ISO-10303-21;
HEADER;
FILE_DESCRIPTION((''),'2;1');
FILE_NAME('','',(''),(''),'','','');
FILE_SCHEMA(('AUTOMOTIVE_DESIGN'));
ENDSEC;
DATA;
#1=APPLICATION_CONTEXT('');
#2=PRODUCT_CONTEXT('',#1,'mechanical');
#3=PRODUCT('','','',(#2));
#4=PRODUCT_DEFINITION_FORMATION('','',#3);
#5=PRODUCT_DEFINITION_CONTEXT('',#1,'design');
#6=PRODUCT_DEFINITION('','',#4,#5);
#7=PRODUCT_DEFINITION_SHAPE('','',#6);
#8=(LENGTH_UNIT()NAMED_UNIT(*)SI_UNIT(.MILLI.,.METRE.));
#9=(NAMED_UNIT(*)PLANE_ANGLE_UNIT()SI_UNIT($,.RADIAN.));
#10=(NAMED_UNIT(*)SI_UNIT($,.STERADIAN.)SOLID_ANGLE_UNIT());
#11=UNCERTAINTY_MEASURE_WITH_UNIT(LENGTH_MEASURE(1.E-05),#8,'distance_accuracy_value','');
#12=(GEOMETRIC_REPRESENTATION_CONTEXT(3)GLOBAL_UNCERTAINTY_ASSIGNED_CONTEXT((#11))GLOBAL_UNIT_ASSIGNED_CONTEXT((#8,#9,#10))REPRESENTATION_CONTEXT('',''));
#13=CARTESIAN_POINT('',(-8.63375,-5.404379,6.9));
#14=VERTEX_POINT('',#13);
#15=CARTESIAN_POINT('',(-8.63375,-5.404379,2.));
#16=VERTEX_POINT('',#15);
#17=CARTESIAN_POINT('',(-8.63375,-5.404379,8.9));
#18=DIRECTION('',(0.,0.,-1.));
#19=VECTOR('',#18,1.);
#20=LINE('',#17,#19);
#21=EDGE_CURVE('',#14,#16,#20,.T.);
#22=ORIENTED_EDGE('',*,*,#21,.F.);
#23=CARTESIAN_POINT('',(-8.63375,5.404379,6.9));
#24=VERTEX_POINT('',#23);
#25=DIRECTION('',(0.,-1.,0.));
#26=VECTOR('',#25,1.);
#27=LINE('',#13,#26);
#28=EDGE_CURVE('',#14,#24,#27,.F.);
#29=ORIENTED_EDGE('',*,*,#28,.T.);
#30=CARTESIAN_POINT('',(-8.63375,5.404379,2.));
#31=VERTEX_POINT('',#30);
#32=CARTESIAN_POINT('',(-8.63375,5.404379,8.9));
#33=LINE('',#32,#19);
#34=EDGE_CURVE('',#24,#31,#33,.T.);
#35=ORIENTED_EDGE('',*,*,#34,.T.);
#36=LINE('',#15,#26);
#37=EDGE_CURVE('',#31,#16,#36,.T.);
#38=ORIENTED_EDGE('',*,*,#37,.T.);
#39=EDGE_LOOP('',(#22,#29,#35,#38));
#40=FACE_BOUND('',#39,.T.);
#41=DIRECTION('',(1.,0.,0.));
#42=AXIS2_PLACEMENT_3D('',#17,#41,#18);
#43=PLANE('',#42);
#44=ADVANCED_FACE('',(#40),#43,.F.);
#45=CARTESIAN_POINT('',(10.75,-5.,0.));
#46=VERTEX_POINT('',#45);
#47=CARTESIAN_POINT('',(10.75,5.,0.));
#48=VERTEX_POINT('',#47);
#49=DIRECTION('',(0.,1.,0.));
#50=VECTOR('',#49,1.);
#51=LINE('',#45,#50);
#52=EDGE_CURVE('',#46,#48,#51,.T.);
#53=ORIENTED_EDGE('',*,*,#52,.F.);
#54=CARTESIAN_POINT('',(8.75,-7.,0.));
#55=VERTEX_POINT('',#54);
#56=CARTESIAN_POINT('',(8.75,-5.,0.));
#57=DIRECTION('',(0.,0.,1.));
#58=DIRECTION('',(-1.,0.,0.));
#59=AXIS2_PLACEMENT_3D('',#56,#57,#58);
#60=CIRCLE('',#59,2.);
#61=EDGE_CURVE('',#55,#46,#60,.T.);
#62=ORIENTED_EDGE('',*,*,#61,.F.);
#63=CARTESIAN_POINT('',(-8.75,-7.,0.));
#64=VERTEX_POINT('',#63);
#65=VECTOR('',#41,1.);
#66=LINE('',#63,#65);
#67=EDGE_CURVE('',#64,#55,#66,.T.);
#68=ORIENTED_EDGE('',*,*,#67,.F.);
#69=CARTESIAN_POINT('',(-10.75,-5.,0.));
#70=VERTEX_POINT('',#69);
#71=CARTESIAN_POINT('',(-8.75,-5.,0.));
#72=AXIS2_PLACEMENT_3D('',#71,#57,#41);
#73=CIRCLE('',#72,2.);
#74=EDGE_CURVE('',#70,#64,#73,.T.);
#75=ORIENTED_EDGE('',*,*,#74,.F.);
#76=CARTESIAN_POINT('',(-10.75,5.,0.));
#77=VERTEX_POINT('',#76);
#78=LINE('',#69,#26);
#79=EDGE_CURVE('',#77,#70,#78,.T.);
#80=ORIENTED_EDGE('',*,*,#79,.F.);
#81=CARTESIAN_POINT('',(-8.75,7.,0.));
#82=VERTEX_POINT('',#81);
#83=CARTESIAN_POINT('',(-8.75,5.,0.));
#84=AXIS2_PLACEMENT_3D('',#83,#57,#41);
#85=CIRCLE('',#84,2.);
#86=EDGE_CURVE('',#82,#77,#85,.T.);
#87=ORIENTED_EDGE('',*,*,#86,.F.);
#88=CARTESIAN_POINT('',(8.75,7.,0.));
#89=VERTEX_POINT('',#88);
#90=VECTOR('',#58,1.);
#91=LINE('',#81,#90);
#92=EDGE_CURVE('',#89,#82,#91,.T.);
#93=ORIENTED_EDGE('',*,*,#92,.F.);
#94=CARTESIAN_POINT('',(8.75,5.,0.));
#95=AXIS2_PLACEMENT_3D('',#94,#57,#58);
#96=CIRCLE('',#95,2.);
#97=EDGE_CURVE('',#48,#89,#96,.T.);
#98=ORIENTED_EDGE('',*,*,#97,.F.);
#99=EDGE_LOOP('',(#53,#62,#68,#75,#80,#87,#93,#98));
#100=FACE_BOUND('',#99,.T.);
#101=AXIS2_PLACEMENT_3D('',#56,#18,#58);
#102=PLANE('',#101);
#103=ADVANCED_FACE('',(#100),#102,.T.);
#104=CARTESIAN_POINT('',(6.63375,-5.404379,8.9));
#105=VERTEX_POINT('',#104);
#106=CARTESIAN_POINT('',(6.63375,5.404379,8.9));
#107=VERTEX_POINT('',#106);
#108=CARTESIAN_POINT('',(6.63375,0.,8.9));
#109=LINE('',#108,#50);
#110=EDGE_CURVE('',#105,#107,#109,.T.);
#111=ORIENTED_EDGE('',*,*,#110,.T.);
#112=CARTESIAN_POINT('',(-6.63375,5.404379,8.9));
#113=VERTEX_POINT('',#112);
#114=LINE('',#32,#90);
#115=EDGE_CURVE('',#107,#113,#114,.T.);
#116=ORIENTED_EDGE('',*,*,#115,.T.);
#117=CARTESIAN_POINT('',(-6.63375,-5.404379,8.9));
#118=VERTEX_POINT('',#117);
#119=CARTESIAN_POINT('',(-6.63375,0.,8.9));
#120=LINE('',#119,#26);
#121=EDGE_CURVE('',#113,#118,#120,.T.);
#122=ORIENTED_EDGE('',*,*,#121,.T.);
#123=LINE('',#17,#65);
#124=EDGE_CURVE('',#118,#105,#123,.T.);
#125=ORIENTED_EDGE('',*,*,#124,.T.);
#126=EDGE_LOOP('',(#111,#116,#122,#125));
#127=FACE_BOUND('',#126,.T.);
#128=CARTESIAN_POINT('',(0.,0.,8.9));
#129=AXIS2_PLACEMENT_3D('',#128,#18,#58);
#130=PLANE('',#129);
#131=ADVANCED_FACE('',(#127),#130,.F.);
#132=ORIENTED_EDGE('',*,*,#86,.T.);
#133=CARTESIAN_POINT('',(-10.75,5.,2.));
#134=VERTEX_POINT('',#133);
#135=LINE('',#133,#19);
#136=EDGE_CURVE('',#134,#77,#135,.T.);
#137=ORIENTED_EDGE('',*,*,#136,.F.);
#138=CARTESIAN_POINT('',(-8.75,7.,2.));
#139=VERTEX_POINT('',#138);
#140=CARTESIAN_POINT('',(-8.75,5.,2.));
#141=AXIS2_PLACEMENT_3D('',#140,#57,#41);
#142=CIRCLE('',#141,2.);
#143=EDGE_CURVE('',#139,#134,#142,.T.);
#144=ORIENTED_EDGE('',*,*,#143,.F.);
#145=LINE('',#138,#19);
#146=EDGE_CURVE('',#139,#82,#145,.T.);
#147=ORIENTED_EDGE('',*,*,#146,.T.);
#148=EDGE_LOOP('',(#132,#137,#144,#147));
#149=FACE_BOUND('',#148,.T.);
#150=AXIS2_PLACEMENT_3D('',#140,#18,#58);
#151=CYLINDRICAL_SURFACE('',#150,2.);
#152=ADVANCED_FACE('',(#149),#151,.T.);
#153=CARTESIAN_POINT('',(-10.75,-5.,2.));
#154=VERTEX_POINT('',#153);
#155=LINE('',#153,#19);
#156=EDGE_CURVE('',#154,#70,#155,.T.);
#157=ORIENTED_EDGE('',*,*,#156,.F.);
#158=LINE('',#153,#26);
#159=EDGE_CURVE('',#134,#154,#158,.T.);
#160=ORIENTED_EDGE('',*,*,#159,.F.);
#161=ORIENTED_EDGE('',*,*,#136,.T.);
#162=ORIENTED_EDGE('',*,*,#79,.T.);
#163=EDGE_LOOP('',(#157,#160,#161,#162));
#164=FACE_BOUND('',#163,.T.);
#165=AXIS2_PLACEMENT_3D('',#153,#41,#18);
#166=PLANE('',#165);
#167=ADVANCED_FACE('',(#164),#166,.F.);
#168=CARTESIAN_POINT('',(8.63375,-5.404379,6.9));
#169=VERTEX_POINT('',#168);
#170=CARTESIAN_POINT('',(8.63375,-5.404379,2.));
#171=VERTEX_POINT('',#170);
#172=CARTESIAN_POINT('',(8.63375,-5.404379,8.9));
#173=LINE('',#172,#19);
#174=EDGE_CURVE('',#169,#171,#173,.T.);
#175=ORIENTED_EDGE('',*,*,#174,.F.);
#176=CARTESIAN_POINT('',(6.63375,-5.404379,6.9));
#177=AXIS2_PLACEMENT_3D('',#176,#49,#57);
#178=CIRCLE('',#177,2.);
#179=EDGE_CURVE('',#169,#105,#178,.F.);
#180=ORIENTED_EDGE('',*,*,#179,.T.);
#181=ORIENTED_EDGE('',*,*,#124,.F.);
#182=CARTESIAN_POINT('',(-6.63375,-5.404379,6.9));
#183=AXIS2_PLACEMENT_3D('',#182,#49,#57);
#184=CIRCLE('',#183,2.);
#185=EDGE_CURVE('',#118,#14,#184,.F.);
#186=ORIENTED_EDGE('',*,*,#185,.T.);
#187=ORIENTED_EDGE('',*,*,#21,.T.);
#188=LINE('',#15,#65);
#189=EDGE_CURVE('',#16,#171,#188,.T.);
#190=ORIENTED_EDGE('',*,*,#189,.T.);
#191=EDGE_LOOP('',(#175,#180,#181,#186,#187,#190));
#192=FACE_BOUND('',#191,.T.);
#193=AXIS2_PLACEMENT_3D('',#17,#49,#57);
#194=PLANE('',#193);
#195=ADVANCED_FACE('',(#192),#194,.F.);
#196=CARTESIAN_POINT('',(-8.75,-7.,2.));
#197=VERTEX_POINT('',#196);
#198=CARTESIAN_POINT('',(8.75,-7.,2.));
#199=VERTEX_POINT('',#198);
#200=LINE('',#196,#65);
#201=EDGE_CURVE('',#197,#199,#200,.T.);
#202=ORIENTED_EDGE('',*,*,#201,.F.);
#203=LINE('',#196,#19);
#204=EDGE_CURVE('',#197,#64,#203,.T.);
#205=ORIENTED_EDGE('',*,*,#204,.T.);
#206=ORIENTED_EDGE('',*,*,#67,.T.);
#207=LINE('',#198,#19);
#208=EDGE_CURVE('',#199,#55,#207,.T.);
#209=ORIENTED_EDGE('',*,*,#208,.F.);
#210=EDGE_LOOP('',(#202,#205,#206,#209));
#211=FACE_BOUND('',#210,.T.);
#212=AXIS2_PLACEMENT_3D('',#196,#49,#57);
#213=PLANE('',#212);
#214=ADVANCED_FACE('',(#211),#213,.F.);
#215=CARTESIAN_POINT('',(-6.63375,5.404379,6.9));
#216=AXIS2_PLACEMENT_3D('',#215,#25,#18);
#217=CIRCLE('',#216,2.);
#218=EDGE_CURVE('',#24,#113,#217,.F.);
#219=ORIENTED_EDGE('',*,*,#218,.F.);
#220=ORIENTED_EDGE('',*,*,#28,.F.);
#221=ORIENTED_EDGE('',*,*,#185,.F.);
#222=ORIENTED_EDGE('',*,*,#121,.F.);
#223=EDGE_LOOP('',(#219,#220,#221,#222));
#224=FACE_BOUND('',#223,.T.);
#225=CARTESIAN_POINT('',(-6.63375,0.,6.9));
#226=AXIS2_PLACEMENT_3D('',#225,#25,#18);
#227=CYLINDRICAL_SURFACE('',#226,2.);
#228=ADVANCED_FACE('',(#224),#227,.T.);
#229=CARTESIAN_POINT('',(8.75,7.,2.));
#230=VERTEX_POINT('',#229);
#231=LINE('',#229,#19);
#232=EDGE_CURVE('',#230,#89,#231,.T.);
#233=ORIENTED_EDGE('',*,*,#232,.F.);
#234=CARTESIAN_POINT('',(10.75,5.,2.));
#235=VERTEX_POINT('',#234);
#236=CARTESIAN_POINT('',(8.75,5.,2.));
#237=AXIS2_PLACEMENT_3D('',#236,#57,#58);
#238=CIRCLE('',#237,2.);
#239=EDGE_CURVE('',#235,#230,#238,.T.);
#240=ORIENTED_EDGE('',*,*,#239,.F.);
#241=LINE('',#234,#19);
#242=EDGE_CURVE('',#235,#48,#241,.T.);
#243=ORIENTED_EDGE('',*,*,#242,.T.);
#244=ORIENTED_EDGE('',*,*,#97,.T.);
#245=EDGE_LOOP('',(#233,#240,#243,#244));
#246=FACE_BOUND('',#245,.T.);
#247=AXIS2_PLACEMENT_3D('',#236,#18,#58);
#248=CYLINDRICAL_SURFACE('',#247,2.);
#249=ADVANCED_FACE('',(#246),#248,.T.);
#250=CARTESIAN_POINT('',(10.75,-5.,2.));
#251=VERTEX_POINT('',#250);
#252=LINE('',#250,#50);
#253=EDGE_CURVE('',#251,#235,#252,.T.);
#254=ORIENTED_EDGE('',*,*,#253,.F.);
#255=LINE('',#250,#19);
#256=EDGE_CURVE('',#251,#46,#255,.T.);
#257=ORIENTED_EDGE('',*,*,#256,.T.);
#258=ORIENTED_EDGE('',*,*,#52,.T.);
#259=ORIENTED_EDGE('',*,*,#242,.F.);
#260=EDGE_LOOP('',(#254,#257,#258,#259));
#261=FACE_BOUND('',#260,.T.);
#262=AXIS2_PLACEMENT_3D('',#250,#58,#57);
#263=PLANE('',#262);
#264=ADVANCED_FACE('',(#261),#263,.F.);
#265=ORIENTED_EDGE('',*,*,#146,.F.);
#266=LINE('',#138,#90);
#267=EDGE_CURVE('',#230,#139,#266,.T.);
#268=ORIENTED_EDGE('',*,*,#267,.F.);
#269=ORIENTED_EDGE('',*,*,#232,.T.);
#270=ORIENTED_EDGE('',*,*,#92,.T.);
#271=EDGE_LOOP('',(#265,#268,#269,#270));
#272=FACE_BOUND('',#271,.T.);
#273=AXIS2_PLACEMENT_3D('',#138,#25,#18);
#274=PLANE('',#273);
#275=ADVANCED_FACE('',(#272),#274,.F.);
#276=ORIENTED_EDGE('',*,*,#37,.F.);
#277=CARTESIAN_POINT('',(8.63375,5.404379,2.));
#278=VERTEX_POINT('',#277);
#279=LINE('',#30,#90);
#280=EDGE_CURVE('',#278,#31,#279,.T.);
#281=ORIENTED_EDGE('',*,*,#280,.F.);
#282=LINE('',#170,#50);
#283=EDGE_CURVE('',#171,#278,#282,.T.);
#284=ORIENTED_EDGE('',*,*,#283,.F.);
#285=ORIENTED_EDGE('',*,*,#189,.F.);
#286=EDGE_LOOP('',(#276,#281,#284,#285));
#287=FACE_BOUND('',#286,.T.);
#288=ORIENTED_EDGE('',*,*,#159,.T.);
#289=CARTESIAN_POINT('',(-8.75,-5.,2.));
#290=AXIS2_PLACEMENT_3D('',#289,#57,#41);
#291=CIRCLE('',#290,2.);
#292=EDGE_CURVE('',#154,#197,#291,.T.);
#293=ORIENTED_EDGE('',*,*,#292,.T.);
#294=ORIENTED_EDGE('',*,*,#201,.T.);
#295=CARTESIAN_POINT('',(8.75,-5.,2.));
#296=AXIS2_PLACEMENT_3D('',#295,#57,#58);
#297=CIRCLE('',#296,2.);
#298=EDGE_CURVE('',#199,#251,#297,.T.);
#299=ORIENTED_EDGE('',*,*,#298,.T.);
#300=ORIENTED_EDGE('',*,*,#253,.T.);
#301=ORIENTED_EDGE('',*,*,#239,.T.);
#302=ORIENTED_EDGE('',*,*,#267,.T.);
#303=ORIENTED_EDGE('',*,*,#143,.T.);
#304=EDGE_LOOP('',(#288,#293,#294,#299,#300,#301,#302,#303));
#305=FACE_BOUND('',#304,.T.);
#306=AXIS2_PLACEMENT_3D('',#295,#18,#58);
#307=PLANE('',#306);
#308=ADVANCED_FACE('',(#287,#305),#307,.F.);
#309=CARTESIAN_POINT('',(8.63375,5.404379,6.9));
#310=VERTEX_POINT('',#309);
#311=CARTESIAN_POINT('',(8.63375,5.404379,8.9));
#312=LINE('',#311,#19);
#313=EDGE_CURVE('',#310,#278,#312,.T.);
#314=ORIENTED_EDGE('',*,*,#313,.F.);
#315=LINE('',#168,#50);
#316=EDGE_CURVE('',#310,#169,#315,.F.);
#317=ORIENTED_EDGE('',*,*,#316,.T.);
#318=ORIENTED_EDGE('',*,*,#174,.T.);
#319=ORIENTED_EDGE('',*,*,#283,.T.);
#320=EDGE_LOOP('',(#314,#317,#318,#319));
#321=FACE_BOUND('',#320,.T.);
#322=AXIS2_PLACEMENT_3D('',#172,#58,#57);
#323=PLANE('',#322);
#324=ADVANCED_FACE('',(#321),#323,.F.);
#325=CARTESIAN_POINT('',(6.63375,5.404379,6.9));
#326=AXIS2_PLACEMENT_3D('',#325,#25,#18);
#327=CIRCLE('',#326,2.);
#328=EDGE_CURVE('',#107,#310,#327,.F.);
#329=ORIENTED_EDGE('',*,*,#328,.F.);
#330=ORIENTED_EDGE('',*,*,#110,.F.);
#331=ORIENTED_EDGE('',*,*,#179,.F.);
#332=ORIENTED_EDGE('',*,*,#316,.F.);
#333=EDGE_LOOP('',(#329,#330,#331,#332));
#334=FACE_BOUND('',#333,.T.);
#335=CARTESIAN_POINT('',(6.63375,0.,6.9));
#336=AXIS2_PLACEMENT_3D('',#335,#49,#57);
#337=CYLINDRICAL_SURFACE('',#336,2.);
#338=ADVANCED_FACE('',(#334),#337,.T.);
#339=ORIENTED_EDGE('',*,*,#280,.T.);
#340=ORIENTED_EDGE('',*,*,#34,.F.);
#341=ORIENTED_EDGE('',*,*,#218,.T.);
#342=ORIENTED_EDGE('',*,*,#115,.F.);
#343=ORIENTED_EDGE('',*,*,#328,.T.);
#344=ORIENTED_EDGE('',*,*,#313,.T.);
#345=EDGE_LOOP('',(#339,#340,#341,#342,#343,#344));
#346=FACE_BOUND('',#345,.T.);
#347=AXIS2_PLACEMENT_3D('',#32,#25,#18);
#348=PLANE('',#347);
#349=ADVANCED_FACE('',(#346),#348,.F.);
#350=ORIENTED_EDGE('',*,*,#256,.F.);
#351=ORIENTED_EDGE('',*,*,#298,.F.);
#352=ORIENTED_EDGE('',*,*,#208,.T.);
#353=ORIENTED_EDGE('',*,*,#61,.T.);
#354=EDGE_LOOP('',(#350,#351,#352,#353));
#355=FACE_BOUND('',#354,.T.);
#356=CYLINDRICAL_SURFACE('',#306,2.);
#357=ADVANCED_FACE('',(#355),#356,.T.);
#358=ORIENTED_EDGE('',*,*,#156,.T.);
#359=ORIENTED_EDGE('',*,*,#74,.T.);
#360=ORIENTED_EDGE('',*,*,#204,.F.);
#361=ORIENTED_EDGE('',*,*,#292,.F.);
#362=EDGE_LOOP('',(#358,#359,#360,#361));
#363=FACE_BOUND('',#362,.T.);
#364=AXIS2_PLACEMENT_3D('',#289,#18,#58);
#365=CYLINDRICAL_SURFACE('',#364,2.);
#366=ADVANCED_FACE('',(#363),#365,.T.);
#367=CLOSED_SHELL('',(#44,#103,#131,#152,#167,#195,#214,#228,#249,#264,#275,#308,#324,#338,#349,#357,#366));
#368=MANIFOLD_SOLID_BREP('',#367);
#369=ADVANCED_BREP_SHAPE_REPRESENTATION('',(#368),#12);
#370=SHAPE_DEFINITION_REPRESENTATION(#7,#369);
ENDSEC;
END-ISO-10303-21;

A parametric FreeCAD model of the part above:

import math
import FreeCAD as App
import Part
import Sketcher

V = App.Vector


def edges_at(feature, points):
    """Names of the edges that pass closest to the given points."""
    edges = feature.Shape.Edges
    near = lambda p: min(range(len(edges)), key=lambda i: edges[i].distToShape(Part.Vertex(*p))[0])
    return sorted({f"Edge{near(p) + 1}" for p in points})

doc = App.newDocument("Part")
body = doc.addObject("PartDesign::Body", "Body")

sketch1 = doc.addObject("Sketcher::SketchObject", "Sketch")
body.addObject(sketch1)
sketch1.AttachmentSupport = (doc.XY_Plane, [""])
sketch1.MapMode = "FlatFace"
sketch1.addGeometry([
    Part.LineSegment(V(-8.8, -7, 0), V(8.8, -7, 0)),
    Part.ArcOfCircle(Part.Circle(V(8.7, -5, 0), V(0, 0, 1), 2), math.radians(-90), math.radians(0)),
    Part.LineSegment(V(10.8, -5, 0), V(10.8, 5, 0)),
    Part.ArcOfCircle(Part.Circle(V(8.7, 5, 0), V(0, 0, 1), 2), math.radians(0), math.radians(90)),
    Part.LineSegment(V(8.8, 7, 0), V(-8.8, 7, 0)),
    Part.ArcOfCircle(Part.Circle(V(-8.7, 5, 0), V(0, 0, 1), 2), math.radians(90), math.radians(180)),
    Part.LineSegment(V(-10.8, 5, 0), V(-10.8, -5, 0)),
    Part.ArcOfCircle(Part.Circle(V(-8.7, -5, 0), V(0, 0, 1), 2), math.radians(-180), math.radians(-90)),
], False)
sketch1.addConstraint([
    Sketcher.Constraint("Tangent", 0, 2, 1, 1),
    Sketcher.Constraint("Tangent", 1, 2, 2, 1),
    Sketcher.Constraint("Tangent", 2, 2, 3, 1),
    Sketcher.Constraint("Tangent", 3, 2, 4, 1),
    Sketcher.Constraint("Tangent", 4, 2, 5, 1),
    Sketcher.Constraint("Tangent", 5, 2, 6, 1),
    Sketcher.Constraint("Tangent", 6, 2, 7, 1),
    Sketcher.Constraint("Tangent", 7, 2, 0, 1),
    Sketcher.Constraint("Horizontal", 0),
    Sketcher.Constraint("Vertical", 2),
    Sketcher.Constraint("Horizontal", 4),
    Sketcher.Constraint("Vertical", 6),
    Sketcher.Constraint("Equal", 1, 3),
    Sketcher.Constraint("Equal", 3, 5),
    Sketcher.Constraint("Equal", 5, 7),
    Sketcher.Constraint("Symmetric", 1, 3, 5, 3, -1, 1),
    Sketcher.Constraint("Radius", 1, 2.0),
    Sketcher.Constraint("DistanceY", 2, 1, 2, 2, 10.0),
    Sketcher.Constraint("DistanceX", 0, 1, 0, 2, 17.5),
])
pad1 = doc.addObject("PartDesign::Pad", "Pad")
body.addObject(pad1)
pad1.Profile = sketch1
pad1.Length = 2

sketch2 = doc.addObject("Sketcher::SketchObject", "Sketch001")
body.addObject(sketch2)
sketch2.AttachmentSupport = (doc.XY_Plane, [""])
sketch2.MapMode = "FlatFace"
sketch2.AttachmentOffset = App.Placement(V(0, 0, 2), App.Rotation())
sketch2.addGeometry([
    Part.LineSegment(V(-9, 5, 0), V(-9, -5, 0)),
    Part.LineSegment(V(-9, -5, 0), V(9, -5, 0)),
    Part.LineSegment(V(9, -5, 0), V(9, 5, 0)),
    Part.LineSegment(V(9, 5, 0), V(-9, 5, 0)),
], False)
sketch2.addConstraint([
    Sketcher.Constraint("Coincident", 0, 2, 1, 1),
    Sketcher.Constraint("Coincident", 1, 2, 2, 1),
    Sketcher.Constraint("Coincident", 2, 2, 3, 1),
    Sketcher.Constraint("Coincident", 3, 2, 0, 1),
    Sketcher.Constraint("Vertical", 0),
    Sketcher.Constraint("Horizontal", 1),
    Sketcher.Constraint("Vertical", 2),
    Sketcher.Constraint("Horizontal", 3),
    Sketcher.Constraint("Symmetric", 0, 2, 2, 2, -1, 1),
    Sketcher.Constraint("DistanceX", 1, 1, 1, 2, 17.267499),
    Sketcher.Constraint("DistanceY", 0, 2, 0, 1, 10.808758),
])
pad2 = doc.addObject("PartDesign::Pad", "Pad001")
body.addObject(pad2)
pad2.Profile = sketch2
pad2.Length = 6.9
doc.recompute()

fillet = doc.addObject("PartDesign::Fillet", "Fillet")
body.addObject(fillet)
fillet.Base = (pad2, edges_at(pad2, [(8.634, 0, 8.9), (-8.634, 0, 8.9)]))
fillet.Radius = 2

doc.recompute()
